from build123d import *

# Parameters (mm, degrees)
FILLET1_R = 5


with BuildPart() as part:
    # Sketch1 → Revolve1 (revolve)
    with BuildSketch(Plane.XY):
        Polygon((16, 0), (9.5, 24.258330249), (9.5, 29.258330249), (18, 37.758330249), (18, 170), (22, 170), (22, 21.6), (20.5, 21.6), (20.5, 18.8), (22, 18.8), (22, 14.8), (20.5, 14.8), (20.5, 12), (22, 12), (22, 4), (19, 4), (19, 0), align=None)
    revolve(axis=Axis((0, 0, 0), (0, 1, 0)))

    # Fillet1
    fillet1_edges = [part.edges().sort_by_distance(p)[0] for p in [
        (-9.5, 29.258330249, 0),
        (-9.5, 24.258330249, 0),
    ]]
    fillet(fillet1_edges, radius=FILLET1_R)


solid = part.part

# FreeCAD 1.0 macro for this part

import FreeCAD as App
import Part
import Sketcher

V = App.Vector
Q = App.Units.Quantity


def edges_at(feature, points):
    """Names of the edges that pass closest to the given points."""
    edges = feature.Shape.Edges
    near = lambda p: min(range(len(edges)), key=lambda i: edges[i].distToShape(Part.Vertex(*p))[0])
    return sorted({f"Edge{near(p) + 1}" for p in points})

doc = App.newDocument("Part")
params = doc.addObject("Spreadsheet::Sheet", "Params")
for row, (alias, value) in enumerate([
    ("sketch1_width", "3 mm"),
    ("sketch1_width2", "4 mm"),
    ("sketch1_height", "8 mm"),
    ("sketch1_height2", "5 mm"),
    ("sketch1_width3", "1.5 mm"),
    ("revolution_angle", "360 deg"),
    ("fillet_radius", "5 mm"),
], start=1):
    params.set(f"A{row}", alias)
    params.set(f"B{row}", "=" + value)
    params.setAlias(f"B{row}", alias)

body = doc.addObject("PartDesign::Body", "Body")

# Sketch on XY plane
sketch1 = doc.addObject("Sketcher::SketchObject", "Sketch")
body.addObject(sketch1)
sketch1.AttachmentSupport = (doc.XY_Plane, [""])
sketch1.MapMode = "FlatFace"
sketch1.addGeometry(Part.LineSegment(V(9.5, 24.25833, 0), V(16, 0, 0)), False)
sketch1.addGeometry(Part.LineSegment(V(16, 0, 0), V(19, 0, 0)), False)
sketch1.addGeometry(Part.LineSegment(V(19, 0, 0), V(19, 4, 0)), False)
sketch1.addGeometry(Part.LineSegment(V(19, 4, 0), V(22, 4, 0)), False)
sketch1.addGeometry(Part.LineSegment(V(22, 4, 0), V(22, 12, 0)), False)
sketch1.addGeometry(Part.LineSegment(V(22, 12, 0), V(20.5, 12, 0)), False)
sketch1.addGeometry(Part.LineSegment(V(20.5, 12, 0), V(20.5, 14.8, 0)), False)
sketch1.addGeometry(Part.LineSegment(V(20.5, 14.8, 0), V(22, 14.8, 0)), False)
sketch1.addGeometry(Part.LineSegment(V(22, 14.8, 0), V(22, 18.8, 0)), False)
sketch1.addGeometry(Part.LineSegment(V(22, 18.8, 0), V(20.5, 18.8, 0)), False)
sketch1.addGeometry(Part.LineSegment(V(20.5, 18.8, 0), V(20.5, 21.6, 0)), False)
sketch1.addGeometry(Part.LineSegment(V(20.5, 21.6, 0), V(22, 21.6, 0)), False)
sketch1.addGeometry(Part.LineSegment(V(22, 21.6, 0), V(22, 170, 0)), False)
sketch1.addGeometry(Part.LineSegment(V(22, 170, 0), V(18, 170, 0)), False)
sketch1.addGeometry(Part.LineSegment(V(18, 170, 0), V(18, 37.75833, 0)), False)
sketch1.addGeometry(Part.LineSegment(V(18, 37.75833, 0), V(9.5, 29.25833, 0)), False)
sketch1.addGeometry(Part.LineSegment(V(9.5, 29.25833, 0), V(9.5, 24.25833, 0)), False)
sketch1.addConstraint(Sketcher.Constraint("Coincident", 0, 2, 1, 1))
sketch1.addConstraint(Sketcher.Constraint("Coincident", 1, 2, 2, 1))
sketch1.addConstraint(Sketcher.Constraint("Coincident", 2, 2, 3, 1))
sketch1.addConstraint(Sketcher.Constraint("Coincident", 3, 2, 4, 1))
sketch1.addConstraint(Sketcher.Constraint("Coincident", 4, 2, 5, 1))
sketch1.addConstraint(Sketcher.Constraint("Coincident", 5, 2, 6, 1))
sketch1.addConstraint(Sketcher.Constraint("Coincident", 6, 2, 7, 1))
sketch1.addConstraint(Sketcher.Constraint("Coincident", 7, 2, 8, 1))
sketch1.addConstraint(Sketcher.Constraint("Coincident", 8, 2, 9, 1))
sketch1.addConstraint(Sketcher.Constraint("Coincident", 9, 2, 10, 1))
sketch1.addConstraint(Sketcher.Constraint("Coincident", 10, 2, 11, 1))
sketch1.addConstraint(Sketcher.Constraint("Coincident", 11, 2, 12, 1))
sketch1.addConstraint(Sketcher.Constraint("Coincident", 12, 2, 13, 1))
sketch1.addConstraint(Sketcher.Constraint("Coincident", 13, 2, 14, 1))
sketch1.addConstraint(Sketcher.Constraint("Coincident", 14, 2, 15, 1))
sketch1.addConstraint(Sketcher.Constraint("Coincident", 15, 2, 16, 1))
sketch1.addConstraint(Sketcher.Constraint("Coincident", 16, 2, 0, 1))
sketch1.addConstraint(Sketcher.Constraint("Horizontal", 1))
sketch1.addConstraint(Sketcher.Constraint("Vertical", 2))
sketch1.addConstraint(Sketcher.Constraint("Horizontal", 3))
sketch1.addConstraint(Sketcher.Constraint("Vertical", 4))
sketch1.addConstraint(Sketcher.Constraint("Horizontal", 5))
sketch1.addConstraint(Sketcher.Constraint("Vertical", 6))
sketch1.addConstraint(Sketcher.Constraint("Horizontal", 7))
sketch1.addConstraint(Sketcher.Constraint("Vertical", 8))
sketch1.addConstraint(Sketcher.Constraint("Horizontal", 9))
sketch1.addConstraint(Sketcher.Constraint("Vertical", 10))
sketch1.addConstraint(Sketcher.Constraint("Horizontal", 11))
sketch1.addConstraint(Sketcher.Constraint("Vertical", 12))
sketch1.addConstraint(Sketcher.Constraint("Horizontal", 13))
sketch1.addConstraint(Sketcher.Constraint("Vertical", 14))
sketch1.addConstraint(Sketcher.Constraint("Vertical", 16))
sketch1.addConstraint(Sketcher.Constraint("PointOnObject", 0, 2, -1))
sketch1.addConstraint(Sketcher.Constraint("Vertical", 4, 2, 7, 2))
sketch1.addConstraint(Sketcher.Constraint("Vertical", 6, 2, 9, 2))
sketch1.addConstraint(Sketcher.Constraint("Vertical", 8, 2, 11, 2))
sketch1.addConstraint(Sketcher.Constraint("Equal", 1, 3))
sketch1.addConstraint(Sketcher.Constraint("Equal", 13, 2))
sketch1.addConstraint(Sketcher.Constraint("Equal", 2, 8))
sketch1.addConstraint(Sketcher.Constraint("Equal", 6, 10))
sketch1.addConstraint(Sketcher.Constraint("DistanceX", 1, 1, 1, 2, Q("3 mm")))
sketch1.addConstraint(Sketcher.Constraint("DistanceX", 13, 2, 13, 1, Q("4 mm")))
sketch1.addConstraint(Sketcher.Constraint("DistanceY", 4, 1, 4, 2, Q("8 mm")))
sketch1.addConstraint(Sketcher.Constraint("DistanceY", 16, 2, 16, 1, Q("5 mm")))
sketch1.addConstraint(Sketcher.Constraint("Angle", 0, Q("-75 deg")))
sketch1.addConstraint(Sketcher.Constraint("Angle", 15, Q("-135 deg")))
sketch1.addConstraint(Sketcher.Constraint("DistanceX", 5, 2, 5, 1, Q("1.5 mm")))
sketch1.addConstraint(Sketcher.Constraint("DistanceY", 6, 1, 6, 2, Q("2.8 mm")))
sketch1.addConstraint(Sketcher.Constraint("DistanceY", 12, 1, 12, 2, Q("148.4 mm")))
sketch1.addConstraint(Sketcher.Constraint("DistanceX", -1, 1, 0, 2, Q("16 mm")))
sketch1.addConstraint(Sketcher.Constraint("DistanceX", 15, 2, 10, 2, Q("11 mm")))
sketch1.setExpression("Constraints[40]", "Params.sketch1_width")
sketch1.setExpression("Constraints[41]", "Params.sketch1_width2")
sketch1.setExpression("Constraints[42]", "Params.sketch1_height")
sketch1.setExpression("Constraints[43]", "Params.sketch1_height2")
sketch1.setExpression("Constraints[46]", "Params.sketch1_width3")
revolution = doc.addObject("PartDesign::Revolution", "Revolution")
body.addObject(revolution)
revolution.Profile = sketch1
revolution.ReferenceAxis = (sketch1, ["V_Axis"])
revolution.setExpression("Angle", "Params.revolution_angle")
doc.recompute()

fillet = doc.addObject("PartDesign::Fillet", "Fillet")
body.addObject(fillet)
fillet.Base = (revolution, edges_at(revolution, [(-9.5, 29.258, 0), (-9.5, 24.258, 0)]))
fillet.setExpression("Radius", "Params.fillet_radius")

doc.recompute()
